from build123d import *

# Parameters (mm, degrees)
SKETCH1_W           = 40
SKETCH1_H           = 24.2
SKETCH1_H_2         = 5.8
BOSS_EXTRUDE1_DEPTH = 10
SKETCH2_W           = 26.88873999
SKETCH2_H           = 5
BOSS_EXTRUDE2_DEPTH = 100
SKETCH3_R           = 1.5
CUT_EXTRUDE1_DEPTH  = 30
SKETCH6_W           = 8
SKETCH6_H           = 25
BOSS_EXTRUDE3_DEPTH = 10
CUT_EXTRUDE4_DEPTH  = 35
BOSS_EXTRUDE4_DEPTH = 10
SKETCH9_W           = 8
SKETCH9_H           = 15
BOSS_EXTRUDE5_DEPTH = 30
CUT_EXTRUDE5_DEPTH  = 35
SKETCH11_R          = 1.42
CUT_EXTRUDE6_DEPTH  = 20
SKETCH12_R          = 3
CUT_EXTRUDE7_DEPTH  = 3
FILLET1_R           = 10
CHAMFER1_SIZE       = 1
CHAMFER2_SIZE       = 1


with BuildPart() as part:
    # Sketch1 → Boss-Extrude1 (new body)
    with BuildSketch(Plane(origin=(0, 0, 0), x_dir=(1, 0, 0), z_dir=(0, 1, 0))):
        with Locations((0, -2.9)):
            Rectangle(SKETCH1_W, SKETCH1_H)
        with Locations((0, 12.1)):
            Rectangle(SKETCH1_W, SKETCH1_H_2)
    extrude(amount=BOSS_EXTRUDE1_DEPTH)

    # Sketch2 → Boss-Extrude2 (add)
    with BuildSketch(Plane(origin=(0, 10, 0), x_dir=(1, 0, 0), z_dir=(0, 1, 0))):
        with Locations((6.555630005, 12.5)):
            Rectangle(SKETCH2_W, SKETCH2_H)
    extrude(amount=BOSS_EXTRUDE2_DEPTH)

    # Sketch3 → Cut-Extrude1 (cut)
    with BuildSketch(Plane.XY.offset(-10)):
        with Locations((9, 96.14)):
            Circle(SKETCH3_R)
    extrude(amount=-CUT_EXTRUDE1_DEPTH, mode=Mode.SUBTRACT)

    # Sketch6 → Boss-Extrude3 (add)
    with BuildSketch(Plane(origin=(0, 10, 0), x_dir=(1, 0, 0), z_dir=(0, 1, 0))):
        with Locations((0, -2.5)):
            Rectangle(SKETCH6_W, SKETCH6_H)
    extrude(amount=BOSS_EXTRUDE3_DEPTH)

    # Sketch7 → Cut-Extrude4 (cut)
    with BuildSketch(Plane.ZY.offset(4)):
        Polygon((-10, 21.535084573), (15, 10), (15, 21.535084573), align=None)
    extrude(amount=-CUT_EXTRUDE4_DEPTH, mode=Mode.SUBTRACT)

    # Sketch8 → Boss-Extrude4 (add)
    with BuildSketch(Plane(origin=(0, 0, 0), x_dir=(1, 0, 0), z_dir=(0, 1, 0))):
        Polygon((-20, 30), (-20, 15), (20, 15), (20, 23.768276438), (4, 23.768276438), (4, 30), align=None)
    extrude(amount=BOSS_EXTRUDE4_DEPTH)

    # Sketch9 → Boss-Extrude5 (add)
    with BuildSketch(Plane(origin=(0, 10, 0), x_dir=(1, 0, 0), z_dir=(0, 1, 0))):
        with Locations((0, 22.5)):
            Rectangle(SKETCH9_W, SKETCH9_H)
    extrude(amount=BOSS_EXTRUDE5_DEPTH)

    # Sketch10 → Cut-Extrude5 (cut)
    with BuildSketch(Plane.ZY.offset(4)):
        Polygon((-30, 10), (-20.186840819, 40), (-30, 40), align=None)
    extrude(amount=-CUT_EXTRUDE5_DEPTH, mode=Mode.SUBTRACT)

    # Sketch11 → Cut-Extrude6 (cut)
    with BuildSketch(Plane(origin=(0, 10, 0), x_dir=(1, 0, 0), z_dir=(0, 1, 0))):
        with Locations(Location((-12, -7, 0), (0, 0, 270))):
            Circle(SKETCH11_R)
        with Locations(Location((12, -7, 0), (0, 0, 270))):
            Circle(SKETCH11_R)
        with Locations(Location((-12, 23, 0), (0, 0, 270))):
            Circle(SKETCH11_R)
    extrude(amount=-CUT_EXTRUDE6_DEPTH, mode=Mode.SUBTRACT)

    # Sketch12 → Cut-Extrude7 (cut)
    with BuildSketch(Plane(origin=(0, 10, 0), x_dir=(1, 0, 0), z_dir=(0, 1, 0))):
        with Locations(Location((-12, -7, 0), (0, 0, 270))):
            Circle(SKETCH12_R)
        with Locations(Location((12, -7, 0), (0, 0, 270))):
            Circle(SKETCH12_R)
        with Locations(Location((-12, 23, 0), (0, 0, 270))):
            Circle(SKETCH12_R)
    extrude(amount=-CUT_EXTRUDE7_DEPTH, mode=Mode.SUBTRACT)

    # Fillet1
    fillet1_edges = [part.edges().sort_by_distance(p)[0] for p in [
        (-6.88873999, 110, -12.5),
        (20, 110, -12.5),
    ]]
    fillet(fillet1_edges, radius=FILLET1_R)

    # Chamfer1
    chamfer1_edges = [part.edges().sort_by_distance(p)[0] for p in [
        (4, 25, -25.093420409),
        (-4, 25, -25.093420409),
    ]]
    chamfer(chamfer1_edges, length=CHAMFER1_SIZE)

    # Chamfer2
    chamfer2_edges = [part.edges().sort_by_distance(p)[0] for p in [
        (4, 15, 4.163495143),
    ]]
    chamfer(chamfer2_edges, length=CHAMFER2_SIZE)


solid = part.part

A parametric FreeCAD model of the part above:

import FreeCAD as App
import Part
import Sketcher

V = App.Vector


def edges_at(feature, points):
    """Names of the edges that pass closest to the given points."""
    edges = feature.Shape.Edges
    near = lambda p: min(range(len(edges)), key=lambda i: edges[i].distToShape(Part.Vertex(*p))[0])
    return sorted({f"Edge{near(p) + 1}" for p in points})

doc = App.newDocument("Part")
body = doc.addObject("PartDesign::Body", "Body")

# Sketch on XZ plane
sketch1 = body.newObject("Sketcher::SketchObject", "Sketch")
sketch1.AttachmentSupport = (doc.getObject("XZ_Plane"), [""])
sketch1.MapMode = "FlatFace"
sketch1.addGeometry(Part.LineSegment(V(-20, 15, 0), V(20, 15, 0)), False)
sketch1.addGeometry(Part.LineSegment(V(20, 15, 0), V(20, -15, 0)), False)
sketch1.addGeometry(Part.LineSegment(V(20, -15, 0), V(-20, -15, 0)), False)
sketch1.addGeometry(Part.LineSegment(V(-20, -15, 0), V(-20, 15, 0)), False)
sketch1.addConstraint(Sketcher.Constraint("Coincident", 0, 2, 1, 1))
sketch1.addConstraint(Sketcher.Constraint("Coincident", 1, 2, 2, 1))
sketch1.addConstraint(Sketcher.Constraint("Coincident", 2, 2, 3, 1))
sketch1.addConstraint(Sketcher.Constraint("Coincident", 3, 2, 0, 1))
sketch1.addConstraint(Sketcher.Constraint("Horizontal", 0))
sketch1.addConstraint(Sketcher.Constraint("Vertical", 1))
sketch1.addConstraint(Sketcher.Constraint("Horizontal", 2))
sketch1.addConstraint(Sketcher.Constraint("Vertical", 3))
sketch1.addConstraint(Sketcher.Constraint("Symmetric", 0, 2, 2, 2, -1, 1))
sketch1.addConstraint(Sketcher.Constraint("DistanceX", 0, 1, 0, 2, 40.0))
sketch1.addConstraint(Sketcher.Constraint("DistanceY", 1, 2, 1, 1, 30.0))
pad1 = body.newObject("PartDesign::Pad", "Pad")
pad1.Profile = sketch1
pad1.Length = 10
pad1.Reversed = True

# Sketch on XZ plane
sketch2 = body.newObject("Sketcher::SketchObject", "Sketch001")
sketch2.AttachmentSupport = (doc.getObject("XZ_Plane"), [""])
sketch2.MapMode = "FlatFace"
sketch2.AttachmentOffset = App.Placement(V(0, 0, -10), App.Rotation())
sketch2.addGeometry(Part.LineSegment(V(-7, -15, 0), V(-7, -10, 0)), False)
sketch2.addGeometry(Part.LineSegment(V(-7, -10, 0), V(20, -10, 0)), False)
sketch2.addGeometry(Part.LineSegment(V(20, -10, 0), V(20, -15, 0)), False)
sketch2.addGeometry(Part.LineSegment(V(20, -15, 0), V(-7, -15, 0)), False)
sketch2.addConstraint(Sketcher.Constraint("Coincident", 0, 2, 1, 1))
sketch2.addConstraint(Sketcher.Constraint("Coincident", 1, 2, 2, 1))
sketch2.addConstraint(Sketcher.Constraint("Coincident", 2, 2, 3, 1))
sketch2.addConstraint(Sketcher.Constraint("Coincident", 3, 2, 0, 1))
sketch2.addConstraint(Sketcher.Constraint("Vertical", 0))
sketch2.addConstraint(Sketcher.Constraint("Horizontal", 1))
sketch2.addConstraint(Sketcher.Constraint("Vertical", 2))
sketch2.addConstraint(Sketcher.Constraint("Horizontal", 3))
sketch2.addConstraint(Sketcher.Constraint("DistanceY", 0, 1, 0, 2, 5.0))
sketch2.addConstraint(Sketcher.Constraint("DistanceY", 0, 2, -1, 1, 10.0))
sketch2.addConstraint(Sketcher.Constraint("DistanceX", -1, 1, 1, 2, 20.0))
sketch2.addConstraint(Sketcher.Constraint("DistanceX", 1, 1, 1, 2, 26.88874))
pad2 = body.newObject("PartDesign::Pad", "Pad001")
pad2.Profile = sketch2
pad2.Length = 100
pad2.Reversed = True

# Sketch on XY plane
sketch3 = body.newObject("Sketcher::SketchObject", "Sketch002")
sketch3.AttachmentSupport = (doc.getObject("XY_Plane"), [""])
sketch3.MapMode = "FlatFace"
sketch3.AttachmentOffset = App.Placement(V(0, 0, -10), App.Rotation())
sketch3.addGeometry(Part.Circle(V(9, 96.1, 0), V(0, 0, 1), 1.5), False)
sketch3.addConstraint(Sketcher.Constraint("Diameter", 0, 3.0))
sketch3.addConstraint(Sketcher.Constraint("DistanceX", -1, 1, 0, 3, 9.0))
sketch3.addConstraint(Sketcher.Constraint("DistanceY", -1, 1, 0, 3, 96.14))
pocket1 = body.newObject("PartDesign::Pocket", "Pocket")
pocket1.Profile = sketch3
pocket1.Length = 30

# Sketch on XZ plane
sketch4 = body.newObject("Sketcher::SketchObject", "Sketch003")
sketch4.AttachmentSupport = (doc.getObject("XZ_Plane"), [""])
sketch4.MapMode = "FlatFace"
sketch4.AttachmentOffset = App.Placement(V(0, 0, -10), App.Rotation())
sketch4.addGeometry(Part.LineSegment(V(-4, -10, 0), V(-4, 15, 0)), False)
sketch4.addGeometry(Part.LineSegment(V(-4, 15, 0), V(4, 15, 0)), False)
sketch4.addGeometry(Part.LineSegment(V(4, 15, 0), V(4, -10, 0)), False)
sketch4.addGeometry(Part.LineSegment(V(4, -10, 0), V(-4, -10, 0)), False)
sketch4.addConstraint(Sketcher.Constraint("Coincident", 0, 2, 1, 1))
sketch4.addConstraint(Sketcher.Constraint("Coincident", 1, 2, 2, 1))
sketch4.addConstraint(Sketcher.Constraint("Coincident", 2, 2, 3, 1))
sketch4.addConstraint(Sketcher.Constraint("Coincident", 3, 2, 0, 1))
sketch4.addConstraint(Sketcher.Constraint("Vertical", 0))
sketch4.addConstraint(Sketcher.Constraint("Horizontal", 1))
sketch4.addConstraint(Sketcher.Constraint("Vertical", 2))
sketch4.addConstraint(Sketcher.Constraint("Horizontal", 3))
sketch4.addConstraint(Sketcher.Constraint("DistanceX", 1, 1, 1, 2, 8.0))
sketch4.addConstraint(Sketcher.Constraint("DistanceY", 0, 1, 0, 2, 25.0))
sketch4.addConstraint(Sketcher.Constraint("DistanceX", 0, 2, -1, 1, 4.0))
sketch4.addConstraint(Sketcher.Constraint("DistanceY", -1, 1, 0, 2, 15.0))
pad3 = body.newObject("PartDesign::Pad", "Pad002")
pad3.Profile = sketch4
pad3.Length = 10
pad3.Reversed = True

# Sketch on YZ plane
sketch5 = body.newObject("Sketcher::SketchObject", "Sketch004")
sketch5.AttachmentSupport = (doc.getObject("YZ_Plane"), [""])
sketch5.MapMode = "FlatFace"
sketch5.AttachmentOffset = App.Placement(V(0, 0, -4), App.Rotation())
sketch5.addGeometry(Part.LineSegment(V(22, -10, 0), V(10, 15, 0)), False)
sketch5.addGeometry(Part.LineSegment(V(10, 15, 0), V(22, 15, 0)), False)
sketch5.addGeometry(Part.LineSegment(V(22, 15, 0), V(22, -10, 0)), False)
sketch5.addConstraint(Sketcher.Constraint("Coincident", 0, 2, 1, 1))
sketch5.addConstraint(Sketcher.Constraint("Coincident", 1, 2, 2, 1))
sketch5.addConstraint(Sketcher.Constraint("Coincident", 2, 2, 0, 1))
sketch5.addConstraint(Sketcher.Constraint("Horizontal", 1))
sketch5.addConstraint(Sketcher.Constraint("Vertical", 2))
sketch5.addConstraint(Sketcher.Constraint("DistanceY", 2, 2, 2, 1, 25.0))
sketch5.addConstraint(Sketcher.Constraint("DistanceX", -1, 1, 0, 2, 10.0))
sketch5.addConstraint(Sketcher.Constraint("DistanceY", -1, 1, 0, 2, 15.0))
sketch5.addConstraint(Sketcher.Constraint("DistanceX", 1, 1, 1, 2, 11.535085))
pocket2 = body.newObject("PartDesign::Pocket", "Pocket001")
pocket2.Profile = sketch5
pocket2.Length = 35
pocket2.Reversed = True

# Sketch on XZ plane
sketch6 = body.newObject("Sketcher::SketchObject", "Sketch005")
sketch6.AttachmentSupport = (doc.getObject("XZ_Plane"), [""])
sketch6.MapMode = "FlatFace"
sketch6.addGeometry(Part.LineSegment(V(-20, -30, 0), V(-20, -15, 0)), False)
sketch6.addGeometry(Part.LineSegment(V(-20, -15, 0), V(20, -15, 0)), False)
sketch6.addGeometry(Part.LineSegment(V(20, -15, 0), V(20, -24, 0)), False)
sketch6.addGeometry(Part.LineSegment(V(20, -24, 0), V(4, -24, 0)), False)
sketch6.addGeometry(Part.LineSegment(V(4, -24, 0), V(4, -30, 0)), False)
sketch6.addGeometry(Part.LineSegment(V(4, -30, 0), V(-20, -30, 0)), False)
sketch6.addConstraint(Sketcher.Constraint("Coincident", 0, 2, 1, 1))
sketch6.addConstraint(Sketcher.Constraint("Coincident", 1, 2, 2, 1))
sketch6.addConstraint(Sketcher.Constraint("Coincident", 2, 2, 3, 1))
sketch6.addConstraint(Sketcher.Constraint("Coincident", 3, 2, 4, 1))
sketch6.addConstraint(Sketcher.Constraint("Coincident", 4, 2, 5, 1))
sketch6.addConstraint(Sketcher.Constraint("Coincident", 5, 2, 0, 1))
sketch6.addConstraint(Sketcher.Constraint("Vertical", 0))
sketch6.addConstraint(Sketcher.Constraint("Horizontal", 1))
sketch6.addConstraint(Sketcher.Constraint("Vertical", 2))
sketch6.addConstraint(Sketcher.Constraint("Horizontal", 3))
sketch6.addConstraint(Sketcher.Constraint("Vertical", 4))
sketch6.addConstraint(Sketcher.Constraint("Horizontal", 5))
sketch6.addConstraint(Sketcher.Constraint("DistanceX", 1, 1, 1, 2, 40.0))
sketch6.addConstraint(Sketcher.Constraint("DistanceX", 3, 2, 3, 1, 16.0))
sketch6.addConstraint(Sketcher.Constraint("DistanceY", 0, 1, 0, 2, 15.0))
sketch6.addConstraint(Sketcher.Constraint("DistanceX", 0, 2, -1, 1, 20.0))
sketch6.addConstraint(Sketcher.Constraint("DistanceY", 0, 2, -1, 1, 15.0))
sketch6.addConstraint(Sketcher.Constraint("DistanceY", 2, 2, 2, 1, 8.768276))
pad4 = body.newObject("PartDesign::Pad", "Pad003")
pad4.Profile = sketch6
pad4.Length = 10
pad4.Reversed = True

# Sketch on XZ plane
sketch7 = body.newObject("Sketcher::SketchObject", "Sketch006")
sketch7.AttachmentSupport = (doc.getObject("XZ_Plane"), [""])
sketch7.MapMode = "FlatFace"
sketch7.AttachmentOffset = App.Placement(V(0, 0, -10), App.Rotation())
sketch7.addGeometry(Part.LineSegment(V(-4, -30, 0), V(-4, -15, 0)), False)
sketch7.addGeometry(Part.LineSegment(V(-4, -15, 0), V(4, -15, 0)), False)
sketch7.addGeometry(Part.LineSegment(V(4, -15, 0), V(4, -30, 0)), False)
sketch7.addGeometry(Part.LineSegment(V(4, -30, 0), V(-4, -30, 0)), False)
sketch7.addConstraint(Sketcher.Constraint("Coincident", 0, 2, 1, 1))
sketch7.addConstraint(Sketcher.Constraint("Coincident", 1, 2, 2, 1))
sketch7.addConstraint(Sketcher.Constraint("Coincident", 2, 2, 3, 1))
sketch7.addConstraint(Sketcher.Constraint("Coincident", 3, 2, 0, 1))
sketch7.addConstraint(Sketcher.Constraint("Vertical", 0))
sketch7.addConstraint(Sketcher.Constraint("Horizontal", 1))
sketch7.addConstraint(Sketcher.Constraint("Vertical", 2))
sketch7.addConstraint(Sketcher.Constraint("Horizontal", 3))
sketch7.addConstraint(Sketcher.Constraint("DistanceX", 1, 1, 1, 2, 8.0))
sketch7.addConstraint(Sketcher.Constraint("DistanceY", 0, 1, 0, 2, 15.0))
sketch7.addConstraint(Sketcher.Constraint("DistanceX", 0, 2, -1, 1, 4.0))
sketch7.addConstraint(Sketcher.Constraint("DistanceY", 0, 2, -1, 1, 15.0))
pad5 = body.newObject("PartDesign::Pad", "Pad004")
pad5.Profile = sketch7
pad5.Length = 30
pad5.Reversed = True

# Sketch on YZ plane
sketch8 = body.newObject("Sketcher::SketchObject", "Sketch007")
sketch8.AttachmentSupport = (doc.getObject("YZ_Plane"), [""])
sketch8.MapMode = "FlatFace"
sketch8.AttachmentOffset = App.Placement(V(0, 0, -4), App.Rotation())
sketch8.addGeometry(Part.LineSegment(V(10, -30, 0), V(40, -20, 0)), False)
sketch8.addGeometry(Part.LineSegment(V(40, -20, 0), V(40, -30, 0)), False)
sketch8.addGeometry(Part.LineSegment(V(40, -30, 0), V(10, -30, 0)), False)
sketch8.addConstraint(Sketcher.Constraint("Coincident", 0, 2, 1, 1))
sketch8.addConstraint(Sketcher.Constraint("Coincident", 1, 2, 2, 1))
sketch8.addConstraint(Sketcher.Constraint("Coincident", 2, 2, 0, 1))
sketch8.addConstraint(Sketcher.Constraint("Vertical", 1))
sketch8.addConstraint(Sketcher.Constraint("Horizontal", 2))
sketch8.addConstraint(Sketcher.Constraint("DistanceX", 2, 2, 2, 1, 30.0))
sketch8.addConstraint(Sketcher.Constraint("DistanceX", -1, 1, 0, 2, 40.0))
sketch8.addConstraint(Sketcher.Constraint("DistanceY", 1, 2, -1, 1, 30.0))
sketch8.addConstraint(Sketcher.Constraint("DistanceY", 1, 2, 1, 1, 9.813159))
pocket3 = body.newObject("PartDesign::Pocket", "Pocket002")
pocket3.Profile = sketch8
pocket3.Length = 35
pocket3.Reversed = True

# Sketch on XZ plane
sketch9 = body.newObject("Sketcher::SketchObject", "Sketch008")
sketch9.AttachmentSupport = (doc.getObject("XZ_Plane"), [""])
sketch9.MapMode = "FlatFace"
sketch9.AttachmentOffset = App.Placement(V(0, 0, -10), App.Rotation())
sketch9.addGeometry(Part.Circle(V(-12, 7, 0), V(0, 0, 1), 1.4), False)
sketch9.addGeometry(Part.Circle(V(12, 7, 0), V(0, 0, 1), 1.4), False)
sketch9.addGeometry(Part.Circle(V(-12, -23, 0), V(0, 0, 1), 1.4), False)
sketch9.addConstraint(Sketcher.Constraint("Equal", 0, 1))
sketch9.addConstraint(Sketcher.Constraint("Equal", 1, 2))
sketch9.addConstraint(Sketcher.Constraint("Symmetric", 0, 3, 1, 3, -2))
sketch9.addConstraint(Sketcher.Constraint("Vertical", 0, 3, 2, 3))
sketch9.addConstraint(Sketcher.Constraint("Diameter", 0, 2.84))
sketch9.addConstraint(Sketcher.Constraint("DistanceX", 0, 3, -1, 1, 12.0))
sketch9.addConstraint(Sketcher.Constraint("DistanceY", -1, 1, 0, 3, 7.0))
sketch9.addConstraint(Sketcher.Constraint("DistanceY", 2, 3, -1, 1, 23.0))
pocket4 = body.newObject("PartDesign::Pocket", "Pocket003")
pocket4.Profile = sketch9
pocket4.Length = 20
pocket4.Reversed = True

# Sketch on XZ plane
sketch10 = body.newObject("Sketcher::SketchObject", "Sketch009")
sketch10.AttachmentSupport = (doc.getObject("XZ_Plane"), [""])
sketch10.MapMode = "FlatFace"
sketch10.AttachmentOffset = App.Placement(V(0, 0, -10), App.Rotation())
sketch10.addGeometry(Part.Circle(V(-12, 7, 0), V(0, 0, 1), 3), False)
sketch10.addGeometry(Part.Circle(V(12, 7, 0), V(0, 0, 1), 3), False)
sketch10.addGeometry(Part.Circle(V(-12, -23, 0), V(0, 0, 1), 3), False)
sketch10.addConstraint(Sketcher.Constraint("Equal", 0, 1))
sketch10.addConstraint(Sketcher.Constraint("Equal", 1, 2))
sketch10.addConstraint(Sketcher.Constraint("Symmetric", 0, 3, 1, 3, -2))
sketch10.addConstraint(Sketcher.Constraint("Vertical", 0, 3, 2, 3))
sketch10.addConstraint(Sketcher.Constraint("Diameter", 0, 6.0))
sketch10.addConstraint(Sketcher.Constraint("DistanceX", 0, 3, -1, 1, 12.0))
sketch10.addConstraint(Sketcher.Constraint("DistanceY", -1, 1, 0, 3, 7.0))
sketch10.addConstraint(Sketcher.Constraint("DistanceY", 2, 3, -1, 1, 23.0))
pocket5 = body.newObject("PartDesign::Pocket", "Pocket004")
pocket5.Profile = sketch10
pocket5.Length = 3
pocket5.Reversed = True
doc.recompute()

fillet = body.newObject("PartDesign::Fillet", "Fillet")
fillet.Base = (pocket5, edges_at(pocket5, [(-6.889, 110, -12.5), (20, 110, -12.5)]))
fillet.Radius = 10
doc.recompute()

chamfer = body.newObject("PartDesign::Chamfer", "Chamfer")
chamfer.Base = (fillet, edges_at(fillet, [(4, 25, -25.093), (-4, 25, -25.093)]))
chamfer.Size = 1
doc.recompute()

chamfer2 = body.newObject("PartDesign::Chamfer", "Chamfer001")
chamfer2.Base = (chamfer, edges_at(chamfer, [(4, 15, 4.163)]))
chamfer2.Size = 1

doc.recompute()
